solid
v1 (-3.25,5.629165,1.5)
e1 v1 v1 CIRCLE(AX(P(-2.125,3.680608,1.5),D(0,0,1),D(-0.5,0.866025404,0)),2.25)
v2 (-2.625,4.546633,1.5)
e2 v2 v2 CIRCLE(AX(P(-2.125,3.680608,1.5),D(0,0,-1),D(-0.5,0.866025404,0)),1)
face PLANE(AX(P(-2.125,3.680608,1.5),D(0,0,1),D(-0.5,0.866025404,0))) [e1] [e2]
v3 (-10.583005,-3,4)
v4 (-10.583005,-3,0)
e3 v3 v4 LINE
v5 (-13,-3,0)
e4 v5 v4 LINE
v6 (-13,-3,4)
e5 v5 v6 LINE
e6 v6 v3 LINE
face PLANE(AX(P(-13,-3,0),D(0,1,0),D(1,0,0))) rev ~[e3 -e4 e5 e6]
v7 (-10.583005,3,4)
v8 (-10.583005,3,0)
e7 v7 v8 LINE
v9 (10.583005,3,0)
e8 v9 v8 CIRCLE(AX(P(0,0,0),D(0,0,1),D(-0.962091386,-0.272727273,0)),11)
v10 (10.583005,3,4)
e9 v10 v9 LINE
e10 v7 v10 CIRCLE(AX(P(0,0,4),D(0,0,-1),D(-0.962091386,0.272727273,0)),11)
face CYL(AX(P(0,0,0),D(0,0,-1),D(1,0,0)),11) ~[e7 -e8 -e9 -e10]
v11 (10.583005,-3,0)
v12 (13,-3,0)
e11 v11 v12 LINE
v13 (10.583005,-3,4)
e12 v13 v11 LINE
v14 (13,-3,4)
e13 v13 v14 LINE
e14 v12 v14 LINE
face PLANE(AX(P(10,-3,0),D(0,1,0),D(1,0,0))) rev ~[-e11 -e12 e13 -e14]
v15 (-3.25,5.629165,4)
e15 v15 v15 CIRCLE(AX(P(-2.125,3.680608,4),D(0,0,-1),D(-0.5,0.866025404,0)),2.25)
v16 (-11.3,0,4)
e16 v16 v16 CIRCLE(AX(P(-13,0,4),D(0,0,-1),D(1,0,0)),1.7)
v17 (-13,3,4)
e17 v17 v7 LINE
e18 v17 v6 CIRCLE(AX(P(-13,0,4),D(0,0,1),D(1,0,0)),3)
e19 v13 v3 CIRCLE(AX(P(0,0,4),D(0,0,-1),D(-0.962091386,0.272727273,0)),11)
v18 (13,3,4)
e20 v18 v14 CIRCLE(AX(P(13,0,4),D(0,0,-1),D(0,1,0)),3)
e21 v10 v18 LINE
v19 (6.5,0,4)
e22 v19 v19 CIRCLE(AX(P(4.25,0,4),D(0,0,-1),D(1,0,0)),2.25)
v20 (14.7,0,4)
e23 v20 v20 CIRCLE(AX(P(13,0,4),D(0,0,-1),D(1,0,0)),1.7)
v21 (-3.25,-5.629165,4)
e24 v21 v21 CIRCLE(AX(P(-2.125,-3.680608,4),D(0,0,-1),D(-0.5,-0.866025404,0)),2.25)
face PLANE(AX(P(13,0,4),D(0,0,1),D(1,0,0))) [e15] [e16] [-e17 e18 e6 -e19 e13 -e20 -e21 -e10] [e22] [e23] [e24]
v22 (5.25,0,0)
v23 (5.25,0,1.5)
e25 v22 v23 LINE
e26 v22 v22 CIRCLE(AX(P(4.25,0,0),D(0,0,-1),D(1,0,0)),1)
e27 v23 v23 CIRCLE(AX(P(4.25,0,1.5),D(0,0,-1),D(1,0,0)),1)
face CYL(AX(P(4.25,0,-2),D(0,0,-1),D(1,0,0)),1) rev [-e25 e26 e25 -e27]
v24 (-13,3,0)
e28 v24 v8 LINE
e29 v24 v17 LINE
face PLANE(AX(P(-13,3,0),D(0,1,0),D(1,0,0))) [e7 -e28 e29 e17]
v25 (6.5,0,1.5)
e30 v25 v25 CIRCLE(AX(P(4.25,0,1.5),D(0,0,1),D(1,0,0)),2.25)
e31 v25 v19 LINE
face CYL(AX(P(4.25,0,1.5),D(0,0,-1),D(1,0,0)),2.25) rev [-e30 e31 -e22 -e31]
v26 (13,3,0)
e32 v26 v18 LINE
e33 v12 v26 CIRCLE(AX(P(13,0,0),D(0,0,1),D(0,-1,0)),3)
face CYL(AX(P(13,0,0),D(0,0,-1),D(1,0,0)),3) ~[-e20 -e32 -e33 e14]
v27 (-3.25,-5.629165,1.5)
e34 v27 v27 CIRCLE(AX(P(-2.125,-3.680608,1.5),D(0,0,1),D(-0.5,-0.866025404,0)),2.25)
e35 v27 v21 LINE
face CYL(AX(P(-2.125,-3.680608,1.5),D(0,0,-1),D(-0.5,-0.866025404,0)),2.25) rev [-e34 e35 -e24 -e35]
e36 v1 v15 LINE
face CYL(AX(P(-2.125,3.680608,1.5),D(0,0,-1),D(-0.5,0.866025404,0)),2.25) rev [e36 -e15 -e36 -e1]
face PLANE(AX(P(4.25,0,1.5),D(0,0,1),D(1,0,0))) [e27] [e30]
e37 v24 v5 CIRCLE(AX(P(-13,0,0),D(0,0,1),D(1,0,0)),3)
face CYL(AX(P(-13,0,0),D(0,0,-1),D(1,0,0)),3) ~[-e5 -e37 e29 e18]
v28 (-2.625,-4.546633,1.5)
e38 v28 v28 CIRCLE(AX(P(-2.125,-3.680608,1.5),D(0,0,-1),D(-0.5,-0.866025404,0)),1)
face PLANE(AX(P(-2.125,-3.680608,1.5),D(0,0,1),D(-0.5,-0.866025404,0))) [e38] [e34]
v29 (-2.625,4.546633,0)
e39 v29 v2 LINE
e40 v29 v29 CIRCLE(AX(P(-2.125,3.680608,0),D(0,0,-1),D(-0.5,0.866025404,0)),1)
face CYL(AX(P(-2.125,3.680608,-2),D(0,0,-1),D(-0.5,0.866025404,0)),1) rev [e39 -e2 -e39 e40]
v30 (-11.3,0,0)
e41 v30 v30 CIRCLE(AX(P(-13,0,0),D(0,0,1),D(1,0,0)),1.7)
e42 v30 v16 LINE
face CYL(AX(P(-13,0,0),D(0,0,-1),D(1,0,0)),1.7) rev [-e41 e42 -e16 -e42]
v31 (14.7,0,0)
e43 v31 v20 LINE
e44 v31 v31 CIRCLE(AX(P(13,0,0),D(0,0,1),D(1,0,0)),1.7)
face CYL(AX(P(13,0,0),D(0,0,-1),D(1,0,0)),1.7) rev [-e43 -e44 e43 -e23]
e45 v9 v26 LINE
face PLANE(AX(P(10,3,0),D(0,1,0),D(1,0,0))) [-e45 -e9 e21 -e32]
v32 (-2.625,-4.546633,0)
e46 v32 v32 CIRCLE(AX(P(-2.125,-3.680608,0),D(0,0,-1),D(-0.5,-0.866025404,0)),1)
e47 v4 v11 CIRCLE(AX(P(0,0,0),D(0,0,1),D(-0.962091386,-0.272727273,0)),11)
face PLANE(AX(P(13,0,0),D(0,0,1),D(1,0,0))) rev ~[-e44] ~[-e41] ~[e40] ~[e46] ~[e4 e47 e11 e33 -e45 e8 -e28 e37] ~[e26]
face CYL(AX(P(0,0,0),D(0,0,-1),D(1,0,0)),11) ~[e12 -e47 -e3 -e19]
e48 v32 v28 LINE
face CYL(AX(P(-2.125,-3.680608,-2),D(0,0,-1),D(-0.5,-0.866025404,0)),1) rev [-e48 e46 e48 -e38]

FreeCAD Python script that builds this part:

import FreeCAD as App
import Part
import Sketcher
from FreeCAD import Vector

doc = App.newDocument("Part")
params = doc.addObject("Spreadsheet::Sheet", "Params")
for row, (alias, value) in enumerate([
    ("sketch1_diameter", "3.4 mm"),
    ("pad1_length", "11 mm"),
    ("sketch2_diameter", "3.4 mm"),
    ("pad2_length", "11 mm"),
    ("sketch3_diameter", "4.5 mm"),
    ("pad3_length", "8 mm"),
    ("sketch4_diameter", "2 mm"),
    ("pad4_length", "5 mm"),
    ("sketch5_diameter", "2 mm"),
    ("pad5_length", "1 mm"),
    ("sketch6_width", "3 mm"),
    ("sketch6_height", "6 mm"),
    ("pad6_length", "4 mm"),
    ("sketch7_diameter", "22 mm"),
    ("pad7_length", "4 mm"),
    ("sketch8_width", "3 mm"),
    ("sketch8_height", "6 mm"),
    ("pad8_length", "4 mm"),
    ("sketch9_diameter", "6 mm"),
    ("pad9_length", "4 mm"),
    ("sketch10_diameter", "6 mm"),
    ("pad10_length", "4 mm"),
], start=1):
    params.set(f"A{row}", alias)
    params.set(f"B{row}", "=" + value)
    params.setAlias(f"B{row}", alias)

body = doc.addObject("PartDesign::Body", "Body")

# Sketch on XY plane
sketch1 = body.newObject("Sketcher::SketchObject", "Sketch")
sketch1.AttachmentSupport = (doc.getObject("XY_Plane"), [""])
sketch1.MapMode = "FlatFace"
sketch1.addGeometry(Part.Circle(Vector(-13, 0, 0), Vector(0, 0, 1), 1.7), False)
sketch1.addConstraint([
    Sketcher.Constraint("PointOnObject", 0, 3, -1),
    Sketcher.Constraint("Diameter", 0, 3.4),
    Sketcher.Constraint("DistanceX", 0, 3, -1, 1, 13.0),
])
sketch1.setExpression("Constraints[1]", "Params.sketch1_diameter")
pad1 = body.newObject("PartDesign::Pad", "Pad")
pad1.Profile = sketch1
pad1.setExpression("Length", "Params.pad1_length")
body2 = doc.addObject("PartDesign::Body", "Body001")

# Sketch on XY plane
sketch2 = body2.newObject("Sketcher::SketchObject", "Sketch001")
sketch2.AttachmentSupport = (doc.getObject("XY_Plane001"), [""])
sketch2.MapMode = "FlatFace"
sketch2.addGeometry(Part.Circle(Vector(13, 0, 0), Vector(0, 0, 1), 1.7), False)
sketch2.addConstraint([
    Sketcher.Constraint("PointOnObject", 0, 3, -1),
    Sketcher.Constraint("Diameter", 0, 3.4),
    Sketcher.Constraint("DistanceX", -1, 1, 0, 3, 13.0),
])
sketch2.setExpression("Constraints[1]", "Params.sketch2_diameter")
pad2 = body2.newObject("PartDesign::Pad", "Pad001")
pad2.Profile = sketch2
pad2.setExpression("Length", "Params.pad2_length")
body3 = doc.addObject("PartDesign::Body", "Body002")

# Sketch on XY plane
sketch3 = body3.newObject("Sketcher::SketchObject", "Sketch002")
sketch3.AttachmentSupport = (doc.getObject("XY_Plane002"), [""])
sketch3.MapMode = "FlatFace"
sketch3.AttachmentOffset = App.Placement(Vector(0, 0, 1.5), App.Rotation())
sketch3.addGeometry(Part.Circle(Vector(0, 0, 0), Vector(0, 0, 1), 2.25), False)
sketch3.addConstraint([
    Sketcher.Constraint("Coincident", 0, 3, -1, 1),
    Sketcher.Constraint("Diameter", 0, 4.5),
])
sketch3.setExpression("Constraints[1]", "Params.sketch3_diameter")
pad3 = body3.newObject("PartDesign::Pad", "Pad002")
pad3.Profile = sketch3
pad3.setExpression("Length", "Params.pad3_length")
body4 = doc.addObject("PartDesign::Body", "Body003")

# Sketch on XY plane
sketch4 = body4.newObject("Sketcher::SketchObject", "Sketch003")
sketch4.AttachmentSupport = (doc.getObject("XY_Plane003"), [""])
sketch4.MapMode = "FlatFace"
sketch4.AttachmentOffset = App.Placement(Vector(0, 0, -2), App.Rotation())
sketch4.addGeometry(Part.Circle(Vector(0, 0, 0), Vector(0, 0, 1), 1), False)
sketch4.addConstraint([
    Sketcher.Constraint("Coincident", 0, 3, -1, 1),
    Sketcher.Constraint("Diameter", 0, 2.0),
])
sketch4.setExpression("Constraints[1]", "Params.sketch4_diameter")
pad4 = body4.newObject("PartDesign::Pad", "Pad003")
pad4.Profile = sketch4
pad4.setExpression("Length", "Params.pad4_length")
body5 = doc.addObject("PartDesign::Body", "Body004")

# Sketch on XY plane
sketch5 = body5.newObject("Sketcher::SketchObject", "Sketch004")
sketch5.AttachmentSupport = (doc.getObject("XY_Plane004"), [""])
sketch5.MapMode = "FlatFace"
sketch5.AttachmentOffset = App.Placement(Vector(0, 0, 4.5), App.Rotation())
sketch5.addGeometry(Part.Circle(Vector(0, 0, 0), Vector(0, 0, 1), 1), False)
sketch5.addConstraint([
    Sketcher.Constraint("Coincident", 0, 3, -1, 1),
    Sketcher.Constraint("Diameter", 0, 2.0),
])
sketch5.setExpression("Constraints[1]", "Params.sketch5_diameter")
pad5 = body5.newObject("PartDesign::Pad", "Pad004")
pad5.Profile = sketch5
pad5.setExpression("Length", "Params.pad5_length")
doc.recompute()

boolean = body5.newObject("PartDesign::Boolean", "Boolean")
boolean.Type = "Fuse"
boolean.addObjects([body3])
doc.recompute()

boolean2 = body5.newObject("PartDesign::Boolean", "Boolean001")
boolean2.Type = "Fuse"
boolean2.addObjects([body4])
body6 = doc.addObject("PartDesign::Body", "Body005")
doc.recompute()

body5.Placement = App.Placement(Vector(4.25, 0, 0), App.Rotation(Vector(0, 0, 1), 0))
boolean3 = body6.newObject("PartDesign::Boolean", "Boolean002")
boolean3.Type = "Fuse"
boolean3.addObjects([body5])
body7 = doc.addObject("PartDesign::Body", "Body006")
body7.AllowCompound = True
doc.recompute()

body7.BaseFeature = body6
doc.recompute()

body8 = doc.addObject("PartDesign::Body", "Body007")
body8.BaseFeature = body6
body8.Placement = App.Placement(Vector(0, 0, 0), App.Rotation(Vector(0, 0, 1), 120))
boolean4 = body7.newObject("PartDesign::Boolean", "Boolean003")
boolean4.Type = "Fuse"
boolean4.addObjects([body8])
doc.recompute()

body6.Placement = App.Placement(Vector(0, 0, 0), App.Rotation(Vector(0, 0, 1), 240))
boolean5 = body7.newObject("PartDesign::Boolean", "Boolean004")
boolean5.Type = "Fuse"
boolean5.addObjects([body6])
doc.recompute()

boolean6 = body7.newObject("PartDesign::Boolean", "Boolean005")
boolean6.Type = "Fuse"
boolean6.addObjects([body])
doc.recompute()

boolean7 = body7.newObject("PartDesign::Boolean", "Boolean006")
boolean7.Type = "Fuse"
boolean7.addObjects([body2])
body9 = doc.addObject("PartDesign::Body", "Body008")

# Sketch on XY plane
sketch6 = body9.newObject("Sketcher::SketchObject", "Sketch005")
sketch6.AttachmentSupport = (doc.getObject("XY_Plane008"), [""])
sketch6.MapMode = "FlatFace"
sketch6.addGeometry([
    Part.LineSegment(Vector(-13, 3, 0), Vector(-13, -3, 0)),
    Part.LineSegment(Vector(-13, -3, 0), Vector(-10, -3, 0)),
    Part.LineSegment(Vector(-10, -3, 0), Vector(-10, 3, 0)),
    Part.LineSegment(Vector(-10, 3, 0), Vector(-13, 3, 0)),
], False)
sketch6.addConstraint([
    Sketcher.Constraint("Coincident", 0, 2, 1, 1),
    Sketcher.Constraint("Coincident", 1, 2, 2, 1),
    Sketcher.Constraint("Coincident", 2, 2, 3, 1),
    Sketcher.Constraint("Coincident", 3, 2, 0, 1),
    Sketcher.Constraint("Vertical", 0),
    Sketcher.Constraint("Horizontal", 1),
    Sketcher.Constraint("Vertical", 2),
    Sketcher.Constraint("Horizontal", 3),
    Sketcher.Constraint("DistanceX", 1, 1, 1, 2, 3.0),
    Sketcher.Constraint("DistanceY", 0, 2, 0, 1, 6.0),
    Sketcher.Constraint("DistanceX", 0, 2, -1, 1, 13.0),
    Sketcher.Constraint("DistanceY", 0, 2, -1, 1, 3.0),
])
sketch6.setExpression("Constraints[8]", "Params.sketch6_width")
sketch6.setExpression("Constraints[9]", "Params.sketch6_height")
pad6 = body9.newObject("PartDesign::Pad", "Pad005")
pad6.Profile = sketch6
pad6.setExpression("Length", "Params.pad6_length")
body10 = doc.addObject("PartDesign::Body", "Body009")

# Sketch on XY plane
sketch7 = body10.newObject("Sketcher::SketchObject", "Sketch006")
sketch7.AttachmentSupport = (doc.getObject("XY_Plane009"), [""])
sketch7.MapMode = "FlatFace"
sketch7.addGeometry(Part.Circle(Vector(0, 0, 0), Vector(0, 0, 1), 11), False)
sketch7.addConstraint([
    Sketcher.Constraint("Coincident", 0, 3, -1, 1),
    Sketcher.Constraint("Diameter", 0, 22.0),
])
sketch7.setExpression("Constraints[1]", "Params.sketch7_diameter")
pad7 = body10.newObject("PartDesign::Pad", "Pad006")
pad7.Profile = sketch7
pad7.setExpression("Length", "Params.pad7_length")
body11 = doc.addObject("PartDesign::Body", "Body010")

# Sketch on XY plane
sketch8 = body11.newObject("Sketcher::SketchObject", "Sketch007")
sketch8.AttachmentSupport = (doc.getObject("XY_Plane010"), [""])
sketch8.MapMode = "FlatFace"
sketch8.addGeometry([
    Part.LineSegment(Vector(10, 3, 0), Vector(10, -3, 0)),
    Part.LineSegment(Vector(10, -3, 0), Vector(13, -3, 0)),
    Part.LineSegment(Vector(13, -3, 0), Vector(13, 3, 0)),
    Part.LineSegment(Vector(13, 3, 0), Vector(10, 3, 0)),
], False)
sketch8.addConstraint([
    Sketcher.Constraint("Coincident", 0, 2, 1, 1),
    Sketcher.Constraint("Coincident", 1, 2, 2, 1),
    Sketcher.Constraint("Coincident", 2, 2, 3, 1),
    Sketcher.Constraint("Coincident", 3, 2, 0, 1),
    Sketcher.Constraint("Vertical", 0),
    Sketcher.Constraint("Horizontal", 1),
    Sketcher.Constraint("Vertical", 2),
    Sketcher.Constraint("Horizontal", 3),
    Sketcher.Constraint("DistanceX", 1, 1, 1, 2, 3.0),
    Sketcher.Constraint("DistanceY", 0, 2, 0, 1, 6.0),
    Sketcher.Constraint("DistanceX", -1, 1, 0, 2, 10.0),
    Sketcher.Constraint("DistanceY", 0, 2, -1, 1, 3.0),
])
sketch8.setExpression("Constraints[8]", "Params.sketch8_width")
sketch8.setExpression("Constraints[9]", "Params.sketch8_height")
pad8 = body11.newObject("PartDesign::Pad", "Pad007")
pad8.Profile = sketch8
pad8.setExpression("Length", "Params.pad8_length")
body12 = doc.addObject("PartDesign::Body", "Body011")

# Sketch on XY plane
sketch9 = body12.newObject("Sketcher::SketchObject", "Sketch008")
sketch9.AttachmentSupport = (doc.getObject("XY_Plane011"), [""])
sketch9.MapMode = "FlatFace"
sketch9.addGeometry(Part.Circle(Vector(13, 0, 0), Vector(0, 0, 1), 3), False)
sketch9.addConstraint([
    Sketcher.Constraint("PointOnObject", 0, 3, -1),
    Sketcher.Constraint("Diameter", 0, 6.0),
    Sketcher.Constraint("DistanceX", -1, 1, 0, 3, 13.0),
])
sketch9.setExpression("Constraints[1]", "Params.sketch9_diameter")
pad9 = body12.newObject("PartDesign::Pad", "Pad008")
pad9.Profile = sketch9
pad9.setExpression("Length", "Params.pad9_length")
body13 = doc.addObject("PartDesign::Body", "Body012")

# Sketch on XY plane
sketch10 = body13.newObject("Sketcher::SketchObject", "Sketch009")
sketch10.AttachmentSupport = (doc.getObject("XY_Plane012"), [""])
sketch10.MapMode = "FlatFace"
sketch10.addGeometry(Part.Circle(Vector(-13, 0, 0), Vector(0, 0, 1), 3), False)
sketch10.addConstraint([
    Sketcher.Constraint("PointOnObject", 0, 3, -1),
    Sketcher.Constraint("Diameter", 0, 6.0),
    Sketcher.Constraint("DistanceX", 0, 3, -1, 1, 13.0),
])
sketch10.setExpression("Constraints[1]", "Params.sketch10_diameter")
pad10 = body13.newObject("PartDesign::Pad", "Pad009")
pad10.Profile = sketch10
pad10.setExpression("Length", "Params.pad10_length")
doc.recompute()

boolean8 = body13.newObject("PartDesign::Boolean", "Boolean007")
boolean8.Type = "Fuse"
boolean8.addObjects([body9])
doc.recompute()

boolean9 = body13.newObject("PartDesign::Boolean", "Boolean008")
boolean9.Type = "Fuse"
boolean9.addObjects([body10])
doc.recompute()

boolean10 = body13.newObject("PartDesign::Boolean", "Boolean009")
boolean10.Type = "Fuse"
boolean10.addObjects([body11])
doc.recompute()

boolean11 = body13.newObject("PartDesign::Boolean", "Boolean010")
boolean11.Type = "Fuse"
boolean11.addObjects([body12])
doc.recompute()

boolean12 = body13.newObject("PartDesign::Boolean", "Boolean011")
boolean12.Type = "Cut"
boolean12.addObjects([body7])

doc.recompute()
